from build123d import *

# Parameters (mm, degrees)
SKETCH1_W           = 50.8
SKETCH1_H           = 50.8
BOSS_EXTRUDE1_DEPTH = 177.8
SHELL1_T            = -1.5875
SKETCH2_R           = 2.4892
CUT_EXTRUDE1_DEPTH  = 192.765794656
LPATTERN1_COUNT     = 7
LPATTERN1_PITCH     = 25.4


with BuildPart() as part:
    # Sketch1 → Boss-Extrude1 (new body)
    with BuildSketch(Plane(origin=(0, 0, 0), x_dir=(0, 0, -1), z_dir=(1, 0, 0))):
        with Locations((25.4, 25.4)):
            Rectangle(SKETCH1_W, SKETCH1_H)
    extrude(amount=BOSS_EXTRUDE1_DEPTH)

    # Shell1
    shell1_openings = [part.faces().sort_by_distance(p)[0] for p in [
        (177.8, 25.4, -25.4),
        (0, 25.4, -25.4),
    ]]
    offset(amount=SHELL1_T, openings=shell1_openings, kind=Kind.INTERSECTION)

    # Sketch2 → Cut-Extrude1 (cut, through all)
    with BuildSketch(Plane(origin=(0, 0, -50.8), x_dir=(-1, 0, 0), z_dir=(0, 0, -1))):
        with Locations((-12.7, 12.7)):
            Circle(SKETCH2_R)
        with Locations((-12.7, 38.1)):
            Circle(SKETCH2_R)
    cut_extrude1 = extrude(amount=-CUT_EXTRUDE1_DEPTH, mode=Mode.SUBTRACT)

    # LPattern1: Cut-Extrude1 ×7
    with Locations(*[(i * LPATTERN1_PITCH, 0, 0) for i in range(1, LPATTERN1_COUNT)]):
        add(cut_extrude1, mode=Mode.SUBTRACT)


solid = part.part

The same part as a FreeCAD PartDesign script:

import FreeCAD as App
import Part
import Sketcher
Q = App.Units.Quantity


def faces_at(feature, points):
    """Names of the faces that lie closest to the given points."""
    faces = feature.Shape.Faces
    near = lambda p: min(range(len(faces)), key=lambda i: faces[i].distToShape(Part.Vertex(*p))[0])
    return sorted({f"Face{near(p) + 1}" for p in points})


def add_polygon(sketch, points):
    """Adds a closed chain of lines whose ends are joined by coincident constraints."""
    first, n = sketch.GeometryCount, len(points)
    for a, b in zip(points, points[1:] + points[:1]):
        sketch.addGeometry(Part.LineSegment(App.Vector(*a, 0), App.Vector(*b, 0)), False)
    for i in range(n):
        sketch.addConstraint(Sketcher.Constraint("Coincident", first + i, 2, first + (i + 1) % n, 1))

doc = App.newDocument("Part")
body = doc.addObject("PartDesign::Body", "Body")

sketch1 = body.newObject("Sketcher::SketchObject", "Sketch")
sketch1.AttachmentSupport = (doc.getObject("YZ_Plane"), [""])
sketch1.MapMode = "FlatFace"
add_polygon(sketch1, [(51, 0), (0, 0), (0, -51), (51, -51)])
sketch1.addConstraint(Sketcher.Constraint("Horizontal", 0))
sketch1.addConstraint(Sketcher.Constraint("Vertical", 1))
sketch1.addConstraint(Sketcher.Constraint("Horizontal", 2))
sketch1.addConstraint(Sketcher.Constraint("Vertical", 3))
sketch1.addConstraint(Sketcher.Constraint("Coincident", 0, 2, -1, 1))
sketch1.addConstraint(Sketcher.Constraint("Equal", 2, 1))
sketch1.addConstraint(Sketcher.Constraint("DistanceX", 0, 2, 0, 1, Q("2 in")))
pad1 = body.newObject("PartDesign::Pad", "Pad")
pad1.Profile = sketch1
pad1.Length = Q("7 in")
doc.recompute()

thickness = body.newObject("PartDesign::Thickness", "Thickness")
thickness.Base = (pad1, faces_at(pad1, [(177.8, 25.4, -25.4), (0, 25.4, -25.4)]))
thickness.Value = Q("0.0625 in")
thickness.Reversed = True
thickness.Join = "Intersection"

sketch2 = body.newObject("Sketcher::SketchObject", "Sketch001")
sketch2.AttachmentSupport = (doc.getObject("XY_Plane"), [""])
sketch2.MapMode = "FlatFace"
sketch2.AttachmentOffset = App.Placement(App.Vector(0, 0, -2 * 25.4), App.Rotation())
sketch2.addGeometry(Part.Circle(App.Vector(12.7, 12.7, 0), App.Vector(0, 0, 1), 2.5), False)
sketch2.addGeometry(Part.Circle(App.Vector(12.7, 38.1, 0), App.Vector(0, 0, 1), 2.5), False)
sketch2.addConstraint(Sketcher.Constraint("Equal", 0, 1))
sketch2.addConstraint(Sketcher.Constraint("Vertical", 0, 3, 1, 3))
sketch2.addConstraint(Sketcher.Constraint("Diameter", 0, Q("0.196 in")))
sketch2.addConstraint(Sketcher.Constraint("DistanceY", 0, 3, 1, 3, Q("1 in")))
sketch2.addConstraint(Sketcher.Constraint("DistanceX", -1, 1, 0, 3, Q("0.5 in")))
sketch2.addConstraint(Sketcher.Constraint("DistanceY", -1, 1, 0, 3, Q("0.5 in")))
pocket1 = body.newObject("PartDesign::Pocket", "Pocket")
pocket1.Profile = sketch2
pocket1.Type = "ThroughAll"
pocket1.Reversed = True
doc.recompute()

linearpattern = body.newObject("PartDesign::LinearPattern", "LinearPattern")
linearpattern.Originals = [pocket1]
linearpattern.Direction = (doc.getObject("X_Axis"), [""])
linearpattern.Mode = "offset"
linearpattern.Offset = Q("1 in")
linearpattern.Occurrences = 7
body.Tip = linearpattern

doc.recompute()
